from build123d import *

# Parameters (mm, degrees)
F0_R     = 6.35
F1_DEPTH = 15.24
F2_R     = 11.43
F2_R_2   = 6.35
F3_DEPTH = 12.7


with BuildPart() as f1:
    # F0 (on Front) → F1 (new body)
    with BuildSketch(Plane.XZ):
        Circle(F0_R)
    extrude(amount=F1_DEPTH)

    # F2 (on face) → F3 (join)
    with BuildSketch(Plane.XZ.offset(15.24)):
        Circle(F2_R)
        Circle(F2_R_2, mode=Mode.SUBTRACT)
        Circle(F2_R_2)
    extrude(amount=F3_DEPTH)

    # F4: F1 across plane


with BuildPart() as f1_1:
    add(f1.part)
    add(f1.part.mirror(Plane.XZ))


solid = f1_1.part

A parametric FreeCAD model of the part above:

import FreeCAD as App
import Part
import Sketcher
Q = App.Units.Quantity

doc = App.newDocument("Part")
params = doc.addObject("Spreadsheet::Sheet", "Params")
for row, (alias, value) in enumerate([
    ("sketch1_diameter", "0.5 in"),
    ("pad1_length", "0.6 in"),
    ("sketch2_diameter", "0.9 in"),
    ("pad2_length", "0.5 in"),
], start=1):
    params.set(f"A{row}", alias)
    params.set(f"B{row}", "=" + value)
    params.setAlias(f"B{row}", alias)

body = doc.addObject("PartDesign::Body", "Body")

# Sketch on XZ plane
sketch1 = body.newObject("Sketcher::SketchObject", "Sketch")
sketch1.AttachmentSupport = (doc.getObject("XZ_Plane"), [""])
sketch1.MapMode = "FlatFace"
sketch1.addGeometry(Part.Circle(App.Vector(0, 0, 0), App.Vector(0, 0, 1), 6), False)
sketch1.addConstraint([
    Sketcher.Constraint("Coincident", 0, 3, -1, 1),
    Sketcher.Constraint("Diameter", 0, Q("0.5 in")),
])
sketch1.setExpression("Constraints[1]", "Params.sketch1_diameter")
pad1 = body.newObject("PartDesign::Pad", "Pad")
pad1.Profile = sketch1
pad1.setExpression("Length", "Params.pad1_length")

# Sketch on XZ plane
sketch2 = body.newObject("Sketcher::SketchObject", "Sketch001")
sketch2.AttachmentSupport = (doc.getObject("XZ_Plane"), [""])
sketch2.MapMode = "FlatFace"
sketch2.AttachmentOffset = App.Placement(App.Vector(0, 0, 0.6 * 25.4), App.Rotation())
sketch2.addGeometry(Part.Circle(App.Vector(0, 0, 0), App.Vector(0, 0, 1), 11), False)
sketch2.addConstraint([
    Sketcher.Constraint("Coincident", 0, 3, -1, 1),
    Sketcher.Constraint("Diameter", 0, Q("0.9 in")),
])
sketch2.setExpression("Constraints[1]", "Params.sketch2_diameter")
pad2 = body.newObject("PartDesign::Pad", "Pad001")
pad2.Profile = sketch2
pad2.setExpression("Length", "Params.pad2_length")
body2 = doc.addObject("PartDesign::Body", "Body001")
doc.recompute()

body2.BaseFeature = body
doc.recompute()

mirroring = doc.addObject("Part::Mirroring", "Mirroring")
mirroring.Source = body
mirroring.Base = App.Vector(0, 0, 0)
mirroring.Normal = App.Vector(0, -1, 0)
body3 = doc.addObject("PartDesign::Body", "Body002")
body3.BaseFeature = mirroring
boolean = body2.newObject("PartDesign::Boolean", "Boolean")
boolean.Type = "Fuse"
boolean.addObjects([body3])
doc.recompute()
mirroring.Visibility = False

doc.recompute()
